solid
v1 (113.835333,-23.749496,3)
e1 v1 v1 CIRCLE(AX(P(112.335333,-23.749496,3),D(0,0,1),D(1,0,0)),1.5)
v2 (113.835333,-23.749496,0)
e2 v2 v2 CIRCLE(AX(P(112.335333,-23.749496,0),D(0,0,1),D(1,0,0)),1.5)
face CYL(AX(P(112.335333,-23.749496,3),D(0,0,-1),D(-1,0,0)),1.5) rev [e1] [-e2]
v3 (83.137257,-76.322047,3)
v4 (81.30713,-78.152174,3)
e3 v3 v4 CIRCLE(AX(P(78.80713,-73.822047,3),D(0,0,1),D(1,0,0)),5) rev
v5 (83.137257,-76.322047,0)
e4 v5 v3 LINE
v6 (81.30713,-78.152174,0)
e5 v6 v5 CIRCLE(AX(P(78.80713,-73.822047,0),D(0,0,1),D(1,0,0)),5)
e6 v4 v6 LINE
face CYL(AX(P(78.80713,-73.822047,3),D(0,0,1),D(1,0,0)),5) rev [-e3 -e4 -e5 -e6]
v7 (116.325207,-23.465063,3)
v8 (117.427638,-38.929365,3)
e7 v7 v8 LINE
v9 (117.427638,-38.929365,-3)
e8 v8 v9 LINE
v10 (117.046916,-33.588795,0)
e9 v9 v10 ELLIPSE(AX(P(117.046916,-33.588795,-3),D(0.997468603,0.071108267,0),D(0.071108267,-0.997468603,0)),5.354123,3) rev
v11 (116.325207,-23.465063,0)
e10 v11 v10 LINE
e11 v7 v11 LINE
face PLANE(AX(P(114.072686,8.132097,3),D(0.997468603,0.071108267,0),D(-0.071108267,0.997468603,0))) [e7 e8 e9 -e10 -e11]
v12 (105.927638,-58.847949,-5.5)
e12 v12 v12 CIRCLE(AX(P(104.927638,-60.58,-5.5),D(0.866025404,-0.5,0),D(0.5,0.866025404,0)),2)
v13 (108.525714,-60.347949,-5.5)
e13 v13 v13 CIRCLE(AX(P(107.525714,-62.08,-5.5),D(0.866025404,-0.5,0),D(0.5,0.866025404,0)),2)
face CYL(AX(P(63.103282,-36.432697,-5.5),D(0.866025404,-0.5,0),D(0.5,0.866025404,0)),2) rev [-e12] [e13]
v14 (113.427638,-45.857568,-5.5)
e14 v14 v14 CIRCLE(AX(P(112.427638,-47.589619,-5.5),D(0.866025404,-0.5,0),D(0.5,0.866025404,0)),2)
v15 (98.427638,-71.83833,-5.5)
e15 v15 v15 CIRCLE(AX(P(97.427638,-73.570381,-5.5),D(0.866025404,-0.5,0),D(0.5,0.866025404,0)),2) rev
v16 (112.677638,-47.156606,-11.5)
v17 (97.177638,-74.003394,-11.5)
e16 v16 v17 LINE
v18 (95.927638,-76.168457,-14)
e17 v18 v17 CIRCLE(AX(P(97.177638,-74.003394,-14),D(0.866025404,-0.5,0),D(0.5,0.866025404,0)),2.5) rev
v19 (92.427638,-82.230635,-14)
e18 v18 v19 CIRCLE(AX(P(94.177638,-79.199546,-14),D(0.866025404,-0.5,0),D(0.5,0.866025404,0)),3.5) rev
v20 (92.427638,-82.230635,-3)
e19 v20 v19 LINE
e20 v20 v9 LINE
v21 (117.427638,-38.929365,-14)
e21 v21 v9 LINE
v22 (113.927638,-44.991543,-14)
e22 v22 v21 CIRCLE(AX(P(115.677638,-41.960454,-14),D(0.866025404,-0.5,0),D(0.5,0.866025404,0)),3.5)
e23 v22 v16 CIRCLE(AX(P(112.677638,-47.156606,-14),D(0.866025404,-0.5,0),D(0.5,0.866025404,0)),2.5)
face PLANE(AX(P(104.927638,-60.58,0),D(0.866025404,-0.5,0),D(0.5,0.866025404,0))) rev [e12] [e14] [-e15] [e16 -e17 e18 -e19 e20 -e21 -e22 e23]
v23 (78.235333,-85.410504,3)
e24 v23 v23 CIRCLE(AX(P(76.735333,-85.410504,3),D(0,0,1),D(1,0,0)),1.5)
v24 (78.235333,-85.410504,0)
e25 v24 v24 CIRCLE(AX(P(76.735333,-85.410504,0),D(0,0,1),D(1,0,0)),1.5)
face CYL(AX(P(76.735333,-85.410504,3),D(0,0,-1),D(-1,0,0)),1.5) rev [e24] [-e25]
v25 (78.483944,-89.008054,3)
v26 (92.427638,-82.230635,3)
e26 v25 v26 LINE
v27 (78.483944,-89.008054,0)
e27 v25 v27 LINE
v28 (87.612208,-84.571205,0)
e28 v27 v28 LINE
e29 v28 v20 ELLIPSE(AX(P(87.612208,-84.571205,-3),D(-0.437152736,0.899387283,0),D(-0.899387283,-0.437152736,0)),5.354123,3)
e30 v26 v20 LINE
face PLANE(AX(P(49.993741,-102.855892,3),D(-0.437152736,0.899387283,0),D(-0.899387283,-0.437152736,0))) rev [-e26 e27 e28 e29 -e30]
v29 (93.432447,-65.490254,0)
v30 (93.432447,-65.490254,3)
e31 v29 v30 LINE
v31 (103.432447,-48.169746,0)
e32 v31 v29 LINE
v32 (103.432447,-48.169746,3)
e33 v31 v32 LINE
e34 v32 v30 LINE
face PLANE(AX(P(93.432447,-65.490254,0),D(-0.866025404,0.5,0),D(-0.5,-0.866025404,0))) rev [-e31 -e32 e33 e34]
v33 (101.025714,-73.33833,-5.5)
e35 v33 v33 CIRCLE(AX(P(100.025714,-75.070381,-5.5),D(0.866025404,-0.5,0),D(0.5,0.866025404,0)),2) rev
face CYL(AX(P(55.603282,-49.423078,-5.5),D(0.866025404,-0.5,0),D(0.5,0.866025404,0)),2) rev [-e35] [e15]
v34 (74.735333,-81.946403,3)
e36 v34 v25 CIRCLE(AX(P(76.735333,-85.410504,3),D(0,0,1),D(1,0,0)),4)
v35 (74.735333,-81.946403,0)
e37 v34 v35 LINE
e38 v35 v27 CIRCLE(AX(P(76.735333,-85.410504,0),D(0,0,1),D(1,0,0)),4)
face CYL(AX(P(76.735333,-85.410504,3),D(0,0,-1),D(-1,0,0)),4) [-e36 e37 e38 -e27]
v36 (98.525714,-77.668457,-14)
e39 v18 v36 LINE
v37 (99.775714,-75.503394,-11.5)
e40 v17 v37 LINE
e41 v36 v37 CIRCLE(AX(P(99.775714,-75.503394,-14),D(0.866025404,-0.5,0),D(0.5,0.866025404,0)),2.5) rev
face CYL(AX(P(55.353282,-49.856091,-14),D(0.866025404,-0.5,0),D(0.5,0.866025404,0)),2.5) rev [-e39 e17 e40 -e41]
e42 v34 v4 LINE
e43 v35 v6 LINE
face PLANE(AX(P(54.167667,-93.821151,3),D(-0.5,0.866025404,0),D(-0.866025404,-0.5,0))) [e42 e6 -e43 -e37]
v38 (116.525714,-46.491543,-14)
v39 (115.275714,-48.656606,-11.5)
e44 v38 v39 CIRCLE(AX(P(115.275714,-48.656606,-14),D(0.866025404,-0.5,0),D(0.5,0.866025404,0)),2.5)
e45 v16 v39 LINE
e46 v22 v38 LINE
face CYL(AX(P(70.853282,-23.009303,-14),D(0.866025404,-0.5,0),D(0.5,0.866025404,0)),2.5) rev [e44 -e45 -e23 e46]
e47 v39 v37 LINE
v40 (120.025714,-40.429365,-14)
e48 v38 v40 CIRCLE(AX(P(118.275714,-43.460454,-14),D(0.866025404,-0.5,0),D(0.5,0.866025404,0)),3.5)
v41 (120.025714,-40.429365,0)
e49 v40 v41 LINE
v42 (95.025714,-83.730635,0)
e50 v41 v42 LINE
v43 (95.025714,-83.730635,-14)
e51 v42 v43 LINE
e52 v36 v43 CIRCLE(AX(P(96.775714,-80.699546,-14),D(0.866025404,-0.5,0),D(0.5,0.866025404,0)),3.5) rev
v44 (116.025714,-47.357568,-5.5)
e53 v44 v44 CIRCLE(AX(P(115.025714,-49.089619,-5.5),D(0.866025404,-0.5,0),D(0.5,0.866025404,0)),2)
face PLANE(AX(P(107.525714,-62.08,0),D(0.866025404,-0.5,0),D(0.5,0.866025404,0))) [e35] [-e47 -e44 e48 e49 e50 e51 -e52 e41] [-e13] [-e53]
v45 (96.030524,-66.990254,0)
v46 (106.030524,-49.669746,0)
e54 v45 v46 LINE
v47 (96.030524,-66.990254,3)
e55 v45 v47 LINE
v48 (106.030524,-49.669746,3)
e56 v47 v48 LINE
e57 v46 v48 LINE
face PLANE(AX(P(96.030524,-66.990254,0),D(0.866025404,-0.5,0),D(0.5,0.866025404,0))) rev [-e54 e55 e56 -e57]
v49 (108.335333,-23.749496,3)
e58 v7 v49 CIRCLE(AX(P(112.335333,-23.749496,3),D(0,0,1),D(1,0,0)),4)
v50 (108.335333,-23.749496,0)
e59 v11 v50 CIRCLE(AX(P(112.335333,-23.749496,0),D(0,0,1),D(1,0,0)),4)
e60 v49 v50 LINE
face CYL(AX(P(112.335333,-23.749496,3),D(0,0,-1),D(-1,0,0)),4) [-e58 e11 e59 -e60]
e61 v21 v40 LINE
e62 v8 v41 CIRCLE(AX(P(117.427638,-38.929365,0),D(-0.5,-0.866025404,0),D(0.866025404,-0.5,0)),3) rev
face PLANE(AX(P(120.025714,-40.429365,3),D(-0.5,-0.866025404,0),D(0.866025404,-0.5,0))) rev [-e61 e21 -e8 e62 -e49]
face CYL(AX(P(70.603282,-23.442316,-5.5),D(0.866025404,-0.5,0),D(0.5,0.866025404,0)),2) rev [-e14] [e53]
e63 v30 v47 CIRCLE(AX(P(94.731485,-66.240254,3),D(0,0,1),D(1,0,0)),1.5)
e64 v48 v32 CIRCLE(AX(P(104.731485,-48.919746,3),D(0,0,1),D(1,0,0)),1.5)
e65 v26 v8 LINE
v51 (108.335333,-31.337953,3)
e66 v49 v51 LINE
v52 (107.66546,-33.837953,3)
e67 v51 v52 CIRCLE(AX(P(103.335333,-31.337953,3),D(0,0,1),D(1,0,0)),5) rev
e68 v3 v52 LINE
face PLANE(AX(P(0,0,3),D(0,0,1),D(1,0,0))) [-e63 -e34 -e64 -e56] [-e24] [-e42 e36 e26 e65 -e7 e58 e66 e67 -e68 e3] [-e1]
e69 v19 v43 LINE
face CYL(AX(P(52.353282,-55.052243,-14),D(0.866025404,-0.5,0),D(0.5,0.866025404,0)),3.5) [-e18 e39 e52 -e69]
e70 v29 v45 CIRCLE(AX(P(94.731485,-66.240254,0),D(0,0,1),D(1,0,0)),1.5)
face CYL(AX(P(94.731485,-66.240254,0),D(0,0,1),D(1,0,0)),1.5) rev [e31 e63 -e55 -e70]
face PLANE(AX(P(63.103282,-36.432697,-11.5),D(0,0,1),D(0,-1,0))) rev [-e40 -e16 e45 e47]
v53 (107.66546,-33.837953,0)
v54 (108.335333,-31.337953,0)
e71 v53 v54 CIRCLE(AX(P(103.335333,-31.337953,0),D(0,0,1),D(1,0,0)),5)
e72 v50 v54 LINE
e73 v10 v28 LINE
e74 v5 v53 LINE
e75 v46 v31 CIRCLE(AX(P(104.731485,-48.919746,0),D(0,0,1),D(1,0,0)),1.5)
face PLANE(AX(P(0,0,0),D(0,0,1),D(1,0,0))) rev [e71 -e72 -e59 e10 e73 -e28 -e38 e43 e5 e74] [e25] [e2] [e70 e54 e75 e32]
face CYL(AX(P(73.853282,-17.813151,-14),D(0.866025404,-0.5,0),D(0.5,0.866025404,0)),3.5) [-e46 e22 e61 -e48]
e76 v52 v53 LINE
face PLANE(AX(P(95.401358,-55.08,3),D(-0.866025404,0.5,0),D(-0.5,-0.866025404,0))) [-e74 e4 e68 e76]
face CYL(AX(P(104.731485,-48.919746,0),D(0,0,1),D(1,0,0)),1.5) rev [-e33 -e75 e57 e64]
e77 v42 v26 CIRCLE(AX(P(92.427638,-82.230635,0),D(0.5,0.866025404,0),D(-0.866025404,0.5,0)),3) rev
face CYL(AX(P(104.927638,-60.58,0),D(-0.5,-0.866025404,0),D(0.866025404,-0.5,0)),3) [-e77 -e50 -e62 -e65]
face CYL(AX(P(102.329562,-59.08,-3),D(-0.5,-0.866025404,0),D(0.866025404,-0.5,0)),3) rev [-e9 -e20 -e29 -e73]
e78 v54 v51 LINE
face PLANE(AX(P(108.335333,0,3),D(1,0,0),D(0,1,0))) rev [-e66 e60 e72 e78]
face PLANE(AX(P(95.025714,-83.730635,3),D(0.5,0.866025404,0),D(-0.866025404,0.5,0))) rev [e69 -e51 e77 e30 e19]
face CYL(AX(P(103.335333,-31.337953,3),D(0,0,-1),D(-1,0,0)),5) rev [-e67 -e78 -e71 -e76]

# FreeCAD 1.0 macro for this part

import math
import FreeCAD as App
import Part
import Sketcher

V = App.Vector
Q = App.Units.Quantity


def edges_at(feature, points):
    """Names of the edges that pass closest to the given points."""
    edges = feature.Shape.Edges
    near = lambda p: min(range(len(edges)), key=lambda i: edges[i].distToShape(Part.Vertex(*p))[0])
    return sorted({f"Edge{near(p) + 1}" for p in points})

doc = App.newDocument("Part")
body = doc.addObject("PartDesign::Body", "Body")

# Sketch on XY plane
sketch1 = doc.addObject("Sketcher::SketchObject", "Sketch")
body.addObject(sketch1)
sketch1.AttachmentSupport = (doc.XY_Plane, [""])
sketch1.MapMode = "FlatFace"
sketch1.addGeometry([
    Part.ArcOfCircle(Part.Circle(V(76.7, -85.4, 0), V(0, 0, 1), 4), math.radians(120), math.radians(296)),  # 0
    Part.LineSegment(V(78.5, -89, 0), V(92.4, -82.2, 0)),  # 1
    Part.LineSegment(V(92.4, -82.2, 0), V(117.4, -38.9, 0)),  # 2
    Part.LineSegment(V(117.4, -38.9, 0), V(116.3, -23.5, 0)),  # 3
    Part.ArcOfCircle(Part.Circle(V(112.3, -23.7, 0), V(0, 0, 1), 4), math.radians(4), math.radians(180)),  # 4
    Part.LineSegment(V(108.3, -23.7, 0), V(108.3, -32.7, 0)),  # 5
    Part.LineSegment(V(108.3, -32.7, 0), V(82.5, -77.5, 0)),  # 6
    Part.LineSegment(V(82.5, -77.5, 0), V(74.7, -81.9, 0)),  # 7
    Part.Circle(V(76.7, -85.4, 0), V(0, 0, 1), 1.5),  # 8
    Part.Circle(V(112.3, -23.7, 0), V(0, 0, 1), 1.5),  # 9
], False)
sketch1.addConstraint([
    Sketcher.Constraint("Tangent", 0, 2, 1, 1),
    Sketcher.Constraint("Coincident", 1, 2, 2, 1),
    Sketcher.Constraint("Coincident", 2, 2, 3, 1),
    Sketcher.Constraint("Tangent", 3, 2, 4, 1),
    Sketcher.Constraint("Tangent", 4, 2, 5, 1),
    Sketcher.Constraint("Coincident", 5, 2, 6, 1),
    Sketcher.Constraint("Coincident", 6, 2, 7, 1),
    Sketcher.Constraint("Tangent", 7, 2, 0, 1),
    Sketcher.Constraint("Vertical", 5),
    Sketcher.Constraint("Coincident", 8, 3, 0, 3),
    Sketcher.Constraint("Coincident", 9, 3, 4, 3),
    Sketcher.Constraint("Equal", 0, 4),
    Sketcher.Constraint("Equal", 8, 9),
    Sketcher.Constraint("Parallel", 2, 6),
    Sketcher.Constraint("Equal", 1, 3),
    Sketcher.Constraint("Diameter", 8, Q("3 mm")),
    Sketcher.Constraint("Radius", 0, Q("4 mm")),
    Sketcher.Constraint("Angle", 2, Q("60 deg")),
    Sketcher.Constraint("Angle", 7, Q("-150 deg")),
    Sketcher.Constraint("Distance", 2, Q("50 mm")),
    Sketcher.Constraint("DistanceX", 0, 3, 4, 3, Q("35.6 mm")),
    Sketcher.Constraint("Distance", 6, Q("51.735898 mm")),
    Sketcher.Constraint("DistanceY", 5, 2, -1, 1, Q("32.677699 mm")),
    Sketcher.Constraint("DistanceY", 5, 2, 5, 1, Q("8.928203 mm")),
    Sketcher.Constraint("DistanceX", 0, 3, 0, 2, Q("1.748611 mm")),
    Sketcher.Constraint("DistanceX", -1, 1, 0, 3, Q("76.735333 mm")),
])
pad1 = doc.addObject("PartDesign::Pad", "Pad")
body.addObject(pad1)
pad1.Profile = sketch1
pad1.Length = 3

# Sketch on XY plane
sketch2 = doc.addObject("Sketcher::SketchObject", "Sketch001")
body.addObject(sketch2)
sketch2.AttachmentSupport = (doc.XY_Plane, [""])
sketch2.MapMode = "FlatFace"
sketch2.AttachmentOffset = App.Placement(V(0, 0, 3), App.Rotation())
sketch2.addGeometry([
    Part.LineSegment(V(103.4, -48.2, 0), V(93.4, -65.5, 0)),
    Part.ArcOfCircle(Part.Circle(V(94.7, -66.2, 0), V(0, 0, 1), 1.5), math.radians(150), math.radians(330)),
    Part.LineSegment(V(96, -67, 0), V(106, -49.7, 0)),
    Part.ArcOfCircle(Part.Circle(V(104.7, -48.9, 0), V(0, 0, 1), 1.5), math.radians(-30), math.radians(150)),
], False)
sketch2.addConstraint([
    Sketcher.Constraint("Tangent", 0, 2, 1, 1),
    Sketcher.Constraint("Tangent", 1, 2, 2, 1),
    Sketcher.Constraint("Tangent", 2, 2, 3, 1),
    Sketcher.Constraint("Tangent", 3, 2, 0, 1),
    Sketcher.Constraint("Equal", 1, 3),
    Sketcher.Constraint("Radius", 1, Q("1.5 mm")),
    Sketcher.Constraint("Angle", 0, Q("-120 deg")),
    Sketcher.Constraint("Distance", 0, Q("20 mm")),
    Sketcher.Constraint("DistanceX", -1, 1, 1, 3, Q("94.731485 mm")),
    Sketcher.Constraint("DistanceY", 1, 3, -1, 1, Q("66.240254 mm")),
])
pocket1 = doc.addObject("PartDesign::Pocket", "Pocket")
body.addObject(pocket1)
pocket1.Profile = sketch2
pocket1.Type = "ThroughAll"

# Sketch on an angled plane
sketch3 = doc.addObject("Sketcher::SketchObject", "Sketch002")
body.addObject(sketch3)
sketch3.Placement = App.Placement(V(104.927638, -60.58, 0), App.Rotation(V(0, 0, -1), V(0.5, 0.866025404, 0), V(0.866025404, -0.5, 0), "ZXY"))
sketch3.addGeometry([
    Part.LineSegment(V(-3, 25, 0), V(-3, -25, 0)),
    Part.LineSegment(V(-3, -25, 0), V(27, -25, 0)),
    Part.LineSegment(V(27, -25, 0), V(27, 25, 0)),
    Part.LineSegment(V(27, 25, 0), V(-3, 25, 0)),
], False)
sketch3.addConstraint([
    Sketcher.Constraint("Coincident", 0, 2, 1, 1),
    Sketcher.Constraint("Coincident", 1, 2, 2, 1),
    Sketcher.Constraint("Coincident", 2, 2, 3, 1),
    Sketcher.Constraint("Coincident", 3, 2, 0, 1),
    Sketcher.Constraint("Vertical", 0),
    Sketcher.Constraint("Horizontal", 1),
    Sketcher.Constraint("Vertical", 2),
    Sketcher.Constraint("Horizontal", 3),
    Sketcher.Constraint("DistanceX", 1, 1, 1, 2, Q("30 mm")),
    Sketcher.Constraint("DistanceY", 0, 2, 0, 1, Q("50 mm")),
    Sketcher.Constraint("DistanceX", 0, 2, -1, 1, Q("3 mm")),
    Sketcher.Constraint("DistanceY", 0, 2, -1, 1, Q("25 mm")),
])
pad2 = doc.addObject("PartDesign::Pad", "Pad001")
body.addObject(pad2)
pad2.Profile = sketch3
pad2.Length = 3
doc.recompute()

fillet = doc.addObject("PartDesign::Fillet", "Fillet")
body.addObject(fillet)
fillet.Base = (pad2, edges_at(pad2, [(107.526, -62.08, 3), (104.928, -60.58, 0)]))
fillet.Radius = 3

# Sketch on an angled plane
sketch4 = doc.addObject("Sketcher::SketchObject", "Sketch003")
body.addObject(sketch4)
sketch4.Placement = App.Placement(V(107.525714, -62.08, 0), App.Rotation(V(0, 0, -1), V(0.5, 0.866025404, 0), V(0.866025404, -0.5, 0), "ZXY"))
sketch4.addGeometry([
    Part.LineSegment(V(27, -25, 0), V(27, 25, 0)),  # 0
    Part.LineSegment(V(27, 25, 0), V(14, 25, 0)),  # 1
    Part.ArcOfCircle(Part.Circle(V(14, 21.5, 0), V(0, 0, 1), 3.5), math.radians(-90), math.radians(90)),  # 2
    Part.ArcOfCircle(Part.Circle(V(14, 15.5, 0), V(0, 0, 1), 2.5), math.radians(90), math.radians(180)),  # 3
    Part.LineSegment(V(11.5, 15.5, 0), V(11.5, -15.5, 0)),  # 4
    Part.ArcOfCircle(Part.Circle(V(14, -15.5, 0), V(0, 0, 1), 2.5), math.radians(180), math.radians(270)),  # 5
    Part.ArcOfCircle(Part.Circle(V(14, -21.5, 0), V(0, 0, 1), 3.5), math.radians(-90), math.radians(90)),  # 6
    Part.LineSegment(V(14, -25, 0), V(27, -25, 0)),  # 7
    Part.Circle(V(5.5, 0, 0), V(0, 0, 1), 2),  # 8
    Part.Circle(V(5.5, 15, 0), V(0, 0, 1), 2),  # 9
    Part.Circle(V(5.5, -15, 0), V(0, 0, 1), 2),  # 10
], False)
sketch4.addConstraint([
    Sketcher.Constraint("Coincident", 0, 2, 1, 1),
    Sketcher.Constraint("Tangent", 1, 2, 2, 2),
    Sketcher.Constraint("Tangent", 2, 1, 3, 1),
    Sketcher.Constraint("Tangent", 3, 2, 4, 1),
    Sketcher.Constraint("Tangent", 4, 2, 5, 1),
    Sketcher.Constraint("Tangent", 5, 2, 6, 2),
    Sketcher.Constraint("Tangent", 6, 1, 7, 1),
    Sketcher.Constraint("Coincident", 7, 2, 0, 1),
    Sketcher.Constraint("Vertical", 0),
    Sketcher.Constraint("Horizontal", 1),
    Sketcher.Constraint("Vertical", 4),
    Sketcher.Constraint("Horizontal", 7),
    Sketcher.Constraint("Equal", 3, 5),
    Sketcher.Constraint("Equal", 2, 6),
    Sketcher.Constraint("Equal", 8, 9),
    Sketcher.Constraint("Equal", 9, 10),
    Sketcher.Constraint("Symmetric", 2, 3, 6, 3, -1),
    Sketcher.Constraint("Symmetric", 9, 3, 10, 3, -1),
    Sketcher.Constraint("PointOnObject", 8, 3, -1),
    Sketcher.Constraint("Vertical", 2, 3, 3, 3),
    Sketcher.Constraint("Vertical", 8, 3, 9, 3),
    Sketcher.Constraint("Diameter", 8, Q("4 mm")),
    Sketcher.Constraint("Radius", 2, Q("3.5 mm")),
    Sketcher.Constraint("Radius", 3, Q("2.5 mm")),
    Sketcher.Constraint("DistanceX", 1, 2, 1, 1, Q("13 mm")),
    Sketcher.Constraint("DistanceY", 0, 1, 0, 2, Q("50 mm")),
    Sketcher.Constraint("DistanceX", -1, 1, 2, 3, Q("14 mm")),
    Sketcher.Constraint("DistanceY", -1, 1, 9, 3, Q("15 mm")),
    Sketcher.Constraint("DistanceX", 9, 3, 3, 2, Q("6 mm")),
])
pocket2 = doc.addObject("PartDesign::Pocket", "Pocket001")
body.addObject(pocket2)
pocket2.Profile = sketch4
pocket2.Type = "ThroughAll"
doc.recompute()

fillet2 = doc.addObject("PartDesign::Fillet", "Fillet001")
body.addObject(fillet2)
fillet2.Base = (pocket2, edges_at(pocket2, [(82.467, -77.482, 1.5), (108.335, -32.678, 1.5)]))
fillet2.Radius = 5

doc.recompute()
